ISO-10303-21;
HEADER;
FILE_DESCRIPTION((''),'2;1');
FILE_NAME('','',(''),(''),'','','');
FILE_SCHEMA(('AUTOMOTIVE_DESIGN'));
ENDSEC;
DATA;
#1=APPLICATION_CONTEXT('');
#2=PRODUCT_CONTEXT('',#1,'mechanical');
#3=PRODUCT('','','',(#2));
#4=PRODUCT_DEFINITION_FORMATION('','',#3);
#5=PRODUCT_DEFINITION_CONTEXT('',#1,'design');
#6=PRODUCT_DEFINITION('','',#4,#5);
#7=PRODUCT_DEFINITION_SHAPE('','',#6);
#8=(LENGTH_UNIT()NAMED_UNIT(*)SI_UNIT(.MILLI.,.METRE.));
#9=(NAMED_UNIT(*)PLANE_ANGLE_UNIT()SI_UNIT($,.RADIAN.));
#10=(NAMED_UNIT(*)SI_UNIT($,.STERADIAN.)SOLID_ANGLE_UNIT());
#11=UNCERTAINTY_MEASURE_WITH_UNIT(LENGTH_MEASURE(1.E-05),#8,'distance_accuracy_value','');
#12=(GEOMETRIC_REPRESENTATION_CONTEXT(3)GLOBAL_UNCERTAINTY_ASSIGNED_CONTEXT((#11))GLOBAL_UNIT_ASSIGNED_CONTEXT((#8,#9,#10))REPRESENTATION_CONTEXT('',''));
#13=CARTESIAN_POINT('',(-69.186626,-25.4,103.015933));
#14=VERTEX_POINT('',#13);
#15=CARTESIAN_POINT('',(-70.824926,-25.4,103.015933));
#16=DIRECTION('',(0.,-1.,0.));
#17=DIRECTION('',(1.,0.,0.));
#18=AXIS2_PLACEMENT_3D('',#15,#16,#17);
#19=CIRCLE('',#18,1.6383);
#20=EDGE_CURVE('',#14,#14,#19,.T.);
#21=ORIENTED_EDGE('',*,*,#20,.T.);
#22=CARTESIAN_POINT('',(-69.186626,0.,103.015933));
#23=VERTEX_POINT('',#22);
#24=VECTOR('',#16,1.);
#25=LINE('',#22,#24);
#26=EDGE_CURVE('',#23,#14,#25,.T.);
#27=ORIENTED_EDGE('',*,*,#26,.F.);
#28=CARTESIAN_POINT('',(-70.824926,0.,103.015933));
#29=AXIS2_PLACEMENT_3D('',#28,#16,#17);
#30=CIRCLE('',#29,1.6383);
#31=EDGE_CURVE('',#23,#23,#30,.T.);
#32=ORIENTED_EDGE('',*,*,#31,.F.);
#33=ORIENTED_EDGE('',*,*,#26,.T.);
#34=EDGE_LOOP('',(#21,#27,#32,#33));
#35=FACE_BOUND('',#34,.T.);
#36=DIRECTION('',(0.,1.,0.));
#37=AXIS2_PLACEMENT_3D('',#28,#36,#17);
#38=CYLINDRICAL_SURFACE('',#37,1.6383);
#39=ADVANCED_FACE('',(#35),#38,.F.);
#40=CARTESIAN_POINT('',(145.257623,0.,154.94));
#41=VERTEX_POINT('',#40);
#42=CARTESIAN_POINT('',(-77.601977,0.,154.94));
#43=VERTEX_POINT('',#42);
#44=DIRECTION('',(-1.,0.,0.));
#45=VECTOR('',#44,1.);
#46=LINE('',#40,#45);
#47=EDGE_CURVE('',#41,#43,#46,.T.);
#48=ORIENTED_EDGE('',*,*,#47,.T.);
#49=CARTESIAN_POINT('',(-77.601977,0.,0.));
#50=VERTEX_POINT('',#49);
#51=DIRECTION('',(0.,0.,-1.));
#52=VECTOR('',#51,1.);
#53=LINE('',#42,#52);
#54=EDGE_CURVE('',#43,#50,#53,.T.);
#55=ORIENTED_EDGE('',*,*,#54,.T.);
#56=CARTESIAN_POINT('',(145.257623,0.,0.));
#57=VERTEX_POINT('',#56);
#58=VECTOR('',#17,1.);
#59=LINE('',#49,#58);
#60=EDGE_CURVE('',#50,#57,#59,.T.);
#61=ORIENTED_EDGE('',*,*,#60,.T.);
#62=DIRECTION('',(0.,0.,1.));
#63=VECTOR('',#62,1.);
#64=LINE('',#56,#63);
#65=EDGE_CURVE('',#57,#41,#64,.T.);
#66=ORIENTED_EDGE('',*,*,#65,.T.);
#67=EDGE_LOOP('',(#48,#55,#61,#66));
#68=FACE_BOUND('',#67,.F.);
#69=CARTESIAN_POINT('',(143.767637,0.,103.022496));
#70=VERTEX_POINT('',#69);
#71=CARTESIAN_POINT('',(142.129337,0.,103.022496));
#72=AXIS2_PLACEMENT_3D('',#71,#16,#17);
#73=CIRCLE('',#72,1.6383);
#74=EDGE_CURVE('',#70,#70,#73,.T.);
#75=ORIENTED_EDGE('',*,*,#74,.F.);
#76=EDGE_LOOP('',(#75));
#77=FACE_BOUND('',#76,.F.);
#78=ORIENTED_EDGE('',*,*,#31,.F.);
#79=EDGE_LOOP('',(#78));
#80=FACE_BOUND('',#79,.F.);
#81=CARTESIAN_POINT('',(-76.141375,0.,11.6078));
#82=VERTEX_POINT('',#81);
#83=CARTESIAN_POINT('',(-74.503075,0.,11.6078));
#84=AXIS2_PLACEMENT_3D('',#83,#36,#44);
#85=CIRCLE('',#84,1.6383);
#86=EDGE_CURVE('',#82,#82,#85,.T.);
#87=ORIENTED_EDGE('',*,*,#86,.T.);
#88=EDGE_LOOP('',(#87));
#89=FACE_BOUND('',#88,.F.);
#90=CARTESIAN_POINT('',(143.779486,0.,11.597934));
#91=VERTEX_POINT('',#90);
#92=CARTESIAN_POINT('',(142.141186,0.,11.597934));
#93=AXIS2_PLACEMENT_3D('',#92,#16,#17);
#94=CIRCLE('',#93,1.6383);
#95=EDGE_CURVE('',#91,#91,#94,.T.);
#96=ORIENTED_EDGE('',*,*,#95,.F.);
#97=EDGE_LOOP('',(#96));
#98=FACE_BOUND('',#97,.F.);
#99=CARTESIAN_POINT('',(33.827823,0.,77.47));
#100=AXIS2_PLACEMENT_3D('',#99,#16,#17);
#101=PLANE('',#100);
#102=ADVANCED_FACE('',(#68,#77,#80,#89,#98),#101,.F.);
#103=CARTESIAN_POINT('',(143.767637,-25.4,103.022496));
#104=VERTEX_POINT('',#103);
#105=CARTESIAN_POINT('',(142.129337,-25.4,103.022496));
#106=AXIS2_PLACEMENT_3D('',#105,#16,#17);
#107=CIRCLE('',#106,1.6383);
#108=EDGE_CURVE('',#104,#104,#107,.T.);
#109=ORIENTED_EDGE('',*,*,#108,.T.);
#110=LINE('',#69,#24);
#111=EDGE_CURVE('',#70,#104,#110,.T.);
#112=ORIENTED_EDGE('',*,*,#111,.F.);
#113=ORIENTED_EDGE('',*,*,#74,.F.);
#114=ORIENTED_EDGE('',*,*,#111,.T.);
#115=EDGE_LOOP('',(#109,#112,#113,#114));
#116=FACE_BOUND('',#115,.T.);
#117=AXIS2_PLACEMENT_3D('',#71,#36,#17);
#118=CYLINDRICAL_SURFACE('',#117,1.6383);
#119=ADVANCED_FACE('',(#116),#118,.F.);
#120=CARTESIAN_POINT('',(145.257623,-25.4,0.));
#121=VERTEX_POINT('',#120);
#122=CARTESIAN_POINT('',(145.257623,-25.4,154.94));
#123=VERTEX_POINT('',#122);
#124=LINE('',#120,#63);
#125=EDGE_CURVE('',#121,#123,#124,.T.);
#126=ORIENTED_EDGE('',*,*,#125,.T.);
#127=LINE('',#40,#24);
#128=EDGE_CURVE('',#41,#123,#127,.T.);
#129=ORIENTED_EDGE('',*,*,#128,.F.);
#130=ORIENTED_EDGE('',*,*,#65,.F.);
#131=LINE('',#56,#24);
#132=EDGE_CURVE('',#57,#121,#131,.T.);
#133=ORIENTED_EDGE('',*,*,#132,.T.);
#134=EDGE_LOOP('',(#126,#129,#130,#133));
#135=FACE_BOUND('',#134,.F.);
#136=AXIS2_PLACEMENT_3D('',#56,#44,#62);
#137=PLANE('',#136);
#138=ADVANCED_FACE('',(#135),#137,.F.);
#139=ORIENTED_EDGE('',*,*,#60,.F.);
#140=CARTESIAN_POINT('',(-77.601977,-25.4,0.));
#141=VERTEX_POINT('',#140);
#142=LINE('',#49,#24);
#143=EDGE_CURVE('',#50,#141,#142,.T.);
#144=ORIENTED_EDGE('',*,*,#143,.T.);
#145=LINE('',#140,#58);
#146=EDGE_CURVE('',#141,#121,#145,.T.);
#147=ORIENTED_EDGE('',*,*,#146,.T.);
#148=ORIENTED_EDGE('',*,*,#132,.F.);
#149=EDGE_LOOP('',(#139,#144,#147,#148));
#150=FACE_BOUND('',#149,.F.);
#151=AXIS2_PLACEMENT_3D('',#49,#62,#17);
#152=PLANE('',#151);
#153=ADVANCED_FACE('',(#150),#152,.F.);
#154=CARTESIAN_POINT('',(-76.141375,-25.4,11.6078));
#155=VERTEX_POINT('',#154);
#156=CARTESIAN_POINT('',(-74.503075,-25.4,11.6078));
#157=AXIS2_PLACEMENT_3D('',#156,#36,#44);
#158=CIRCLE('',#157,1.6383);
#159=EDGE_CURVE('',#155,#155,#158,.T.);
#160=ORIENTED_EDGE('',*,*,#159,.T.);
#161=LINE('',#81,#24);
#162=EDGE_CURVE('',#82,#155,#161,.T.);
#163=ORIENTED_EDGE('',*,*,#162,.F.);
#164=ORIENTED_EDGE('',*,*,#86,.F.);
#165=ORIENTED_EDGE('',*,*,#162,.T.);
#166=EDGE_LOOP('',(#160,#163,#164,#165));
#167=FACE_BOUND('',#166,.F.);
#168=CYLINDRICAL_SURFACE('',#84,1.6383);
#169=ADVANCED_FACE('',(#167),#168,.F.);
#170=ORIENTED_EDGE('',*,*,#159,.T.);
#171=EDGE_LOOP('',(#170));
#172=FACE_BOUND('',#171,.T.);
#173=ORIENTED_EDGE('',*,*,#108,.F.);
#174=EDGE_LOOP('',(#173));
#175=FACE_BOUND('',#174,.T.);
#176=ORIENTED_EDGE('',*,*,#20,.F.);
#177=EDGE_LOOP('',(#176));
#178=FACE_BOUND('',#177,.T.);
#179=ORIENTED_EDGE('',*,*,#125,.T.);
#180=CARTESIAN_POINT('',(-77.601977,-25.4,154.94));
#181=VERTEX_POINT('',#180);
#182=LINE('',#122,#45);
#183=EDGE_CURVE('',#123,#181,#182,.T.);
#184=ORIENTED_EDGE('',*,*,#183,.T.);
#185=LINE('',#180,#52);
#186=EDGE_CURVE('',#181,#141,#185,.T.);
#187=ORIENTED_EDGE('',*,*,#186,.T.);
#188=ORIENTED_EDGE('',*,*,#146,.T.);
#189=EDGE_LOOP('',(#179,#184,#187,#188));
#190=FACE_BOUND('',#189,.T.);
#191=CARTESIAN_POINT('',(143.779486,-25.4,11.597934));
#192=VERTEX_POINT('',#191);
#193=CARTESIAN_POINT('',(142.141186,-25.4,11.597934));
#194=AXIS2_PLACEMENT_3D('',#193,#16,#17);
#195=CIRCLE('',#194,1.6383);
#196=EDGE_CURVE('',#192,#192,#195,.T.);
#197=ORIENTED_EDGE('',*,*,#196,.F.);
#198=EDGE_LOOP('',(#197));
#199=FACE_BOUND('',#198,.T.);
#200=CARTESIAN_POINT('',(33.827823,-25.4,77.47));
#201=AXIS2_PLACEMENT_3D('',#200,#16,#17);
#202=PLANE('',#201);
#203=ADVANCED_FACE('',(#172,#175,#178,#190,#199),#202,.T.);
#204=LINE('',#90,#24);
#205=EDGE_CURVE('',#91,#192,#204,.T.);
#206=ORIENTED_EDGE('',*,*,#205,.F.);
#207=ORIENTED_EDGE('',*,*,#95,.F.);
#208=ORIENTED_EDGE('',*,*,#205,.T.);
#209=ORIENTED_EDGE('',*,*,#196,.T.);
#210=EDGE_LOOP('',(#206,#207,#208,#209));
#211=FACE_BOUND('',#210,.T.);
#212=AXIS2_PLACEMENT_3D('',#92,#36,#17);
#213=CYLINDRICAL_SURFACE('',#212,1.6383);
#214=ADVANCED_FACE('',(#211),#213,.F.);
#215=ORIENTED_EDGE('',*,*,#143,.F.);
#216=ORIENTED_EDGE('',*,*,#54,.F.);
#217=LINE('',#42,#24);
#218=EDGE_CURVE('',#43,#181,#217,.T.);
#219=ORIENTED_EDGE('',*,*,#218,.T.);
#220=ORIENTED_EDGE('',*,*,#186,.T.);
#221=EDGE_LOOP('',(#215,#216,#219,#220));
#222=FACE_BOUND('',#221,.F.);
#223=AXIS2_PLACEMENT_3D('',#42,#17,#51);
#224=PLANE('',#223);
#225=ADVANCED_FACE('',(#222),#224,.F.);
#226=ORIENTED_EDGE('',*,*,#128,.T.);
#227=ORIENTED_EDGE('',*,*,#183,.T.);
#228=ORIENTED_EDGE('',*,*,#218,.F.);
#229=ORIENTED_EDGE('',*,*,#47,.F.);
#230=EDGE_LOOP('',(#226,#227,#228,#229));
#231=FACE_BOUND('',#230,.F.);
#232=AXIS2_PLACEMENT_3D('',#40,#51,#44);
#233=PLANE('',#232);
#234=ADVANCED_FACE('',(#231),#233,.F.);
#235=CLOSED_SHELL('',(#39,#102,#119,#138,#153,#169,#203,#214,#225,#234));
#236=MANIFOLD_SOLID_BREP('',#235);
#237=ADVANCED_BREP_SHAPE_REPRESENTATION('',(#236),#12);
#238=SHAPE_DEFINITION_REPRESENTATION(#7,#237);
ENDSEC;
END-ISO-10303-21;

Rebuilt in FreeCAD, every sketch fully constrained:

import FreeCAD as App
import Part
import Sketcher

V = App.Vector
Q = App.Units.Quantity


def add_polygon(sketch, points):
    """Adds a closed chain of lines whose ends are joined by coincident constraints."""
    first, n = sketch.GeometryCount, len(points)
    for a, b in zip(points, points[1:] + points[:1]):
        sketch.addGeometry(Part.LineSegment(App.Vector(*a, 0), App.Vector(*b, 0)), False)
    for i in range(n):
        sketch.addConstraint(Sketcher.Constraint("Coincident", first + i, 2, first + (i + 1) % n, 1))

doc = App.newDocument("Part")
body = doc.addObject("PartDesign::Body", "Body")

# Sketch on XZ plane
sketch1 = doc.addObject("Sketcher::SketchObject", "Sketch")
body.addObject(sketch1)
sketch1.AttachmentSupport = (doc.XZ_Plane, [""])
sketch1.MapMode = "FlatFace"
add_polygon(sketch1, [(-77.6, 0), (145.3, 0), (145.3, 154.9), (-77.6, 154.9)])  # lines 0-3
sketch1.addGeometry(Part.Circle(V(-74.5, 11.6, 0), V(0, 0, 1), 1.6), False)  # 4
sketch1.addGeometry(Part.Circle(V(142.1, 11.6, 0), V(0, 0, 1), 1.6), False)  # 5
sketch1.addGeometry(Part.Circle(V(-70.8, 103, 0), V(0, 0, 1), 1.6), False)  # 6
sketch1.addGeometry(Part.Circle(V(142.1, 103, 0), V(0, 0, 1), 1.6), False)  # 7
sketch1.addConstraint(Sketcher.Constraint("Horizontal", 0))
sketch1.addConstraint(Sketcher.Constraint("Vertical", 1))
sketch1.addConstraint(Sketcher.Constraint("Horizontal", 2))
sketch1.addConstraint(Sketcher.Constraint("Vertical", 3))
sketch1.addConstraint(Sketcher.Constraint("Equal", 4, 5))
sketch1.addConstraint(Sketcher.Constraint("Equal", 5, 6))
sketch1.addConstraint(Sketcher.Constraint("Equal", 6, 7))
sketch1.addConstraint(Sketcher.Constraint("PointOnObject", 0, 2, -1))
sketch1.addConstraint(Sketcher.Constraint("Diameter", 4, Q("0.129 in")))
sketch1.addConstraint(Sketcher.Constraint("DistanceY", 1, 1, 1, 2, Q("6.1 in")))
sketch1.addConstraint(Sketcher.Constraint("DistanceX", 0, 1, 0, 2, Q("8.774 in")))
sketch1.addConstraint(Sketcher.Constraint("DistanceY", -1, 1, 4, 3, Q("0.457 in")))
sketch1.addConstraint(Sketcher.Constraint("DistanceY", 5, 3, 6, 3, 91.417999))
sketch1.addConstraint(Sketcher.Constraint("DistanceX", 4, 3, 5, 3, 216.644261))
sketch1.addConstraint(Sketcher.Constraint("DistanceX", 4, 3, 6, 3, 3.678149))
sketch1.addConstraint(Sketcher.Constraint("DistanceX", 7, 3, 5, 3, 0.011849))
sketch1.addConstraint(Sketcher.Constraint("DistanceX", 6, 3, 0, 2, 216.082549))
sketch1.addConstraint(Sketcher.Constraint("DistanceX", 4, 3, -1, 1, 74.503075))
sketch1.addConstraint(Sketcher.Constraint("DistanceY", -1, 1, 5, 3, 11.597934))
sketch1.addConstraint(Sketcher.Constraint("DistanceY", -1, 1, 7, 3, 103.022496))
pad1 = doc.addObject("PartDesign::Pad", "Pad")
body.addObject(pad1)
pad1.Profile = sketch1
pad1.Length = Q("1 in")

doc.recompute()
